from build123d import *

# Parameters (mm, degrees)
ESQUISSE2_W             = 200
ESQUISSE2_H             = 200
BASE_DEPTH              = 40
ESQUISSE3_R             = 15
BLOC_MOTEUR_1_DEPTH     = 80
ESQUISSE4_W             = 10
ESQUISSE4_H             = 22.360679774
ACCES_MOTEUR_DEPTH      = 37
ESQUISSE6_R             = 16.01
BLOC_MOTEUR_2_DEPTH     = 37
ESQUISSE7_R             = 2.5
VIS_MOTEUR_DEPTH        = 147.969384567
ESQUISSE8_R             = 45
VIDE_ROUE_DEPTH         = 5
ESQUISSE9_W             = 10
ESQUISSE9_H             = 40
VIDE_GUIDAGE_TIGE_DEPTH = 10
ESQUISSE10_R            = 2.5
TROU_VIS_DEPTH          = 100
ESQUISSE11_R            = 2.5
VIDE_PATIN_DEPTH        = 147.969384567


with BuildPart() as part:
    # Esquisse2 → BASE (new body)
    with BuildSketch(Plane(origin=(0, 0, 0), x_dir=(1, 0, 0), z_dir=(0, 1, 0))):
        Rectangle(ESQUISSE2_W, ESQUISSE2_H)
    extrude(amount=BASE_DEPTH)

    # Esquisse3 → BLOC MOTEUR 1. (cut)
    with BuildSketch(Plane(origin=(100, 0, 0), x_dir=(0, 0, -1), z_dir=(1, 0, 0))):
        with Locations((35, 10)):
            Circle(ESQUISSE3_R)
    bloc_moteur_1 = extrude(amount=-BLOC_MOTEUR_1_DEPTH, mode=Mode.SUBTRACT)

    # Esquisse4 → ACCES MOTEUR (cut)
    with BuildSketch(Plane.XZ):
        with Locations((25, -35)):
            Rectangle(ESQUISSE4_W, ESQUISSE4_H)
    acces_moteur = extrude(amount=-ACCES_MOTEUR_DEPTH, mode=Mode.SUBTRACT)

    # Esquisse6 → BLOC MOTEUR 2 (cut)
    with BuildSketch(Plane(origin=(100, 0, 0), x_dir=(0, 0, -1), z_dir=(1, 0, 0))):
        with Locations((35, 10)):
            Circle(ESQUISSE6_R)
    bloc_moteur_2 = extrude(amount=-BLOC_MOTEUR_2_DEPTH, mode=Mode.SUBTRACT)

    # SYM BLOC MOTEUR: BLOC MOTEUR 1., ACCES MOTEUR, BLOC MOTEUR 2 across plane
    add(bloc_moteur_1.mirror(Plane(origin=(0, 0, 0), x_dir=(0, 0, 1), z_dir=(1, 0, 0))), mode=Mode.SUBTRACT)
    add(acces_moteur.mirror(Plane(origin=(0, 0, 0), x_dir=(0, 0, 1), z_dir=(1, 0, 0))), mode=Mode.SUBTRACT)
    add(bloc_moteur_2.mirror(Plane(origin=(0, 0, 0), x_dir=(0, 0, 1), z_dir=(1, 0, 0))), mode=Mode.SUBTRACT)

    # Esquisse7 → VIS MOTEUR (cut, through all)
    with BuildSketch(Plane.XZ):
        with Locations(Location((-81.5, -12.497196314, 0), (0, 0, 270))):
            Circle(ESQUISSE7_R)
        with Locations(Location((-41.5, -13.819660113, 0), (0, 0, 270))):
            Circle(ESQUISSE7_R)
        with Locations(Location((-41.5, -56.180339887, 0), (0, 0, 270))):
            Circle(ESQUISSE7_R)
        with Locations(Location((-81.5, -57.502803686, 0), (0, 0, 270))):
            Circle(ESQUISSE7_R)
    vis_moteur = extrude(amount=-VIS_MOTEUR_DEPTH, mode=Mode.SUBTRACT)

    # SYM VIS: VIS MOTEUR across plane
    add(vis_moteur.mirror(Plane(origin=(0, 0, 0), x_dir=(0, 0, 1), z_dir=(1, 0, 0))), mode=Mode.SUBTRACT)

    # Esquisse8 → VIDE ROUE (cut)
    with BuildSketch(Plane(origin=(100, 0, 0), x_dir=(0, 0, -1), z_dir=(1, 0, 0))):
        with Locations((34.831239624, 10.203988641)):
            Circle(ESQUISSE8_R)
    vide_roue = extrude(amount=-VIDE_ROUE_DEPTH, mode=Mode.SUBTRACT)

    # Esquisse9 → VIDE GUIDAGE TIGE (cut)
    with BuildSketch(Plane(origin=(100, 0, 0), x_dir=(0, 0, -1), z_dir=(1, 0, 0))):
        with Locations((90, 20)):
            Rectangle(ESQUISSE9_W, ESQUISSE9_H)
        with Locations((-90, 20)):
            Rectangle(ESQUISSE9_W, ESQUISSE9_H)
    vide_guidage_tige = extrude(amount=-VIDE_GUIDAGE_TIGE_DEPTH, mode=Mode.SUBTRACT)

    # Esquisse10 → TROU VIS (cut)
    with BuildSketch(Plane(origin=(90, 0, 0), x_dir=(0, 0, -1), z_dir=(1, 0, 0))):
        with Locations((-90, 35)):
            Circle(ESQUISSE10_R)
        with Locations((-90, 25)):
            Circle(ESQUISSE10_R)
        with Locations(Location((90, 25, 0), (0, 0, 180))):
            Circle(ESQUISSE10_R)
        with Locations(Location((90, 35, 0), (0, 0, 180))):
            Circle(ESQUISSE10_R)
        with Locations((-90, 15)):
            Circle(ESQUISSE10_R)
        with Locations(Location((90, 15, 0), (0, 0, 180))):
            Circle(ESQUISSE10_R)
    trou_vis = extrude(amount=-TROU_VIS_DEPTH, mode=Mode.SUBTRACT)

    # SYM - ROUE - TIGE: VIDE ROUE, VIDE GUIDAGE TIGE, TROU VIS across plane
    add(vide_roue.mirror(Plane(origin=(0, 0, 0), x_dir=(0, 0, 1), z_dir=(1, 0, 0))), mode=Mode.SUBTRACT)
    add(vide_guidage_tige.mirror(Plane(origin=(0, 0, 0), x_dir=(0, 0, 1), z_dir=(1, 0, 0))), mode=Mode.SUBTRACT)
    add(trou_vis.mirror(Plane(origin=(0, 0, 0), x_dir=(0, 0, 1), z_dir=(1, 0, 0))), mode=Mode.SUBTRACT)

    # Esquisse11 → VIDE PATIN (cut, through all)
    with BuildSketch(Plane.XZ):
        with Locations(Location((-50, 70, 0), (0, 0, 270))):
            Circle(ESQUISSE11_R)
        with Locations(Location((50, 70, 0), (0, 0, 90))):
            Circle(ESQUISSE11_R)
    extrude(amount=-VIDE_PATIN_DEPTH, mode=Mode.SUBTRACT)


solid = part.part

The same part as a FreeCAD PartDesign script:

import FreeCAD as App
import Part
import Sketcher

V = App.Vector

doc = App.newDocument("Part")
body = doc.addObject("PartDesign::Body", "Body")

# Sketch on XZ plane
sketch1 = body.newObject("Sketcher::SketchObject", "Sketch")
sketch1.AttachmentSupport = (doc.getObject("XZ_Plane"), [""])
sketch1.MapMode = "FlatFace"
sketch1.addGeometry(Part.LineSegment(V(-100, -100, 0), V(-100, 100, 0)), False)
sketch1.addGeometry(Part.LineSegment(V(-100, 100, 0), V(100, 100, 0)), False)
sketch1.addGeometry(Part.LineSegment(V(100, 100, 0), V(100, -100, 0)), False)
sketch1.addGeometry(Part.LineSegment(V(100, -100, 0), V(-100, -100, 0)), False)
sketch1.addConstraint(Sketcher.Constraint("Coincident", 0, 2, 1, 1))
sketch1.addConstraint(Sketcher.Constraint("Coincident", 1, 2, 2, 1))
sketch1.addConstraint(Sketcher.Constraint("Coincident", 2, 2, 3, 1))
sketch1.addConstraint(Sketcher.Constraint("Coincident", 3, 2, 0, 1))
sketch1.addConstraint(Sketcher.Constraint("Vertical", 0))
sketch1.addConstraint(Sketcher.Constraint("Horizontal", 1))
sketch1.addConstraint(Sketcher.Constraint("Vertical", 2))
sketch1.addConstraint(Sketcher.Constraint("Horizontal", 3))
sketch1.addConstraint(Sketcher.Constraint("Symmetric", 0, 2, 2, 2, -1, 1))
sketch1.addConstraint(Sketcher.Constraint("Equal", 3, 0))
sketch1.addConstraint(Sketcher.Constraint("DistanceX", 1, 1, 1, 2, 200.0))
pad1 = body.newObject("PartDesign::Pad", "Pad")
pad1.Profile = sketch1
pad1.Length = 40
pad1.Reversed = True

# Sketch on YZ plane
sketch2 = body.newObject("Sketcher::SketchObject", "Sketch001")
sketch2.AttachmentSupport = (doc.getObject("YZ_Plane"), [""])
sketch2.MapMode = "FlatFace"
sketch2.AttachmentOffset = App.Placement(V(0, 0, 100), App.Rotation())
sketch2.addGeometry(Part.Circle(V(10, -35, 0), V(0, 0, 1), 15), False)
sketch2.addConstraint(Sketcher.Constraint("Diameter", 0, 30.0))
sketch2.addConstraint(Sketcher.Constraint("DistanceX", -1, 1, 0, 3, 10.0))
sketch2.addConstraint(Sketcher.Constraint("DistanceY", 0, 3, -1, 1, 35.0))
pocket1 = body.newObject("PartDesign::Pocket", "Pocket")
pocket1.Profile = sketch2
pocket1.Length = 80

# Sketch on XZ plane
sketch3 = body.newObject("Sketcher::SketchObject", "Sketch002")
sketch3.AttachmentSupport = (doc.getObject("XZ_Plane"), [""])
sketch3.MapMode = "FlatFace"
sketch3.addGeometry(Part.LineSegment(V(20, -24, 0), V(20, -46, 0)), False)
sketch3.addGeometry(Part.LineSegment(V(20, -46, 0), V(30, -46, 0)), False)
sketch3.addGeometry(Part.LineSegment(V(30, -46, 0), V(30, -24, 0)), False)
sketch3.addGeometry(Part.LineSegment(V(30, -24, 0), V(20, -24, 0)), False)
sketch3.addConstraint(Sketcher.Constraint("Coincident", 0, 2, 1, 1))
sketch3.addConstraint(Sketcher.Constraint("Coincident", 1, 2, 2, 1))
sketch3.addConstraint(Sketcher.Constraint("Coincident", 2, 2, 3, 1))
sketch3.addConstraint(Sketcher.Constraint("Coincident", 3, 2, 0, 1))
sketch3.addConstraint(Sketcher.Constraint("Vertical", 0))
sketch3.addConstraint(Sketcher.Constraint("Horizontal", 1))
sketch3.addConstraint(Sketcher.Constraint("Vertical", 2))
sketch3.addConstraint(Sketcher.Constraint("Horizontal", 3))
sketch3.addConstraint(Sketcher.Constraint("DistanceX", 1, 1, 1, 2, 10.0))
sketch3.addConstraint(Sketcher.Constraint("DistanceX", -1, 1, 0, 2, 20.0))
sketch3.addConstraint(Sketcher.Constraint("DistanceY", 0, 2, 0, 1, 22.36068))
sketch3.addConstraint(Sketcher.Constraint("DistanceY", 0, 2, -1, 1, 46.18034))
pocket2 = body.newObject("PartDesign::Pocket", "Pocket001")
pocket2.Profile = sketch3
pocket2.Length = 37

# Sketch on YZ plane
sketch4 = body.newObject("Sketcher::SketchObject", "Sketch003")
sketch4.AttachmentSupport = (doc.getObject("YZ_Plane"), [""])
sketch4.MapMode = "FlatFace"
sketch4.AttachmentOffset = App.Placement(V(0, 0, 100), App.Rotation())
sketch4.addGeometry(Part.Circle(V(10, -35, 0), V(0, 0, 1), 16), False)
sketch4.addConstraint(Sketcher.Constraint("Diameter", 0, 32.02))
sketch4.addConstraint(Sketcher.Constraint("DistanceX", -1, 1, 0, 3, 10.0))
sketch4.addConstraint(Sketcher.Constraint("DistanceY", 0, 3, -1, 1, 35.0))
pocket3 = body.newObject("PartDesign::Pocket", "Pocket002")
pocket3.Profile = sketch4
pocket3.Length = 37
doc.recompute()

mirrored = body.newObject("PartDesign::Mirrored", "Mirrored")
mirrored.Originals = [pocket1, pocket2, pocket3]
mirrored.MirrorPlane = (doc.getObject("YZ_Plane"), [""])
body.Tip = mirrored

# Sketch on XZ plane
sketch5 = body.newObject("Sketcher::SketchObject", "Sketch004")
sketch5.AttachmentSupport = (doc.getObject("XZ_Plane"), [""])
sketch5.MapMode = "FlatFace"
sketch5.addGeometry(Part.Circle(V(-81.5, -12.5, 0), V(0, 0, 1), 2.5), False)
sketch5.addGeometry(Part.Circle(V(-41.5, -13.8, 0), V(0, 0, 1), 2.5), False)
sketch5.addGeometry(Part.Circle(V(-41.5, -56.2, 0), V(0, 0, 1), 2.5), False)
sketch5.addGeometry(Part.Circle(V(-81.5, -57.5, 0), V(0, 0, 1), 2.5), False)
sketch5.addConstraint(Sketcher.Constraint("Equal", 0, 1))
sketch5.addConstraint(Sketcher.Constraint("Equal", 1, 2))
sketch5.addConstraint(Sketcher.Constraint("Equal", 2, 3))
sketch5.addConstraint(Sketcher.Constraint("Vertical", 1, 3, 2, 3))
sketch5.addConstraint(Sketcher.Constraint("Vertical", 0, 3, 3, 3))
sketch5.addConstraint(Sketcher.Constraint("Diameter", 0, 5.0))
sketch5.addConstraint(Sketcher.Constraint("DistanceX", 0, 3, 1, 3, 40.0))
sketch5.addConstraint(Sketcher.Constraint("DistanceX", 0, 3, -1, 1, 81.5))
sketch5.addConstraint(Sketcher.Constraint("DistanceY", 1, 3, -1, 1, 13.81966))
sketch5.addConstraint(Sketcher.Constraint("DistanceY", 2, 3, -1, 1, 56.18034))
sketch5.addConstraint(Sketcher.Constraint("DistanceY", 0, 3, -1, 1, 12.497196))
sketch5.addConstraint(Sketcher.Constraint("DistanceY", 3, 3, -1, 1, 57.502804))
pocket4 = body.newObject("PartDesign::Pocket", "Pocket003")
pocket4.Profile = sketch5
pocket4.Type = "ThroughAll"
doc.recompute()

mirrored2 = body.newObject("PartDesign::Mirrored", "Mirrored001")
mirrored2.Originals = [pocket4]
mirrored2.MirrorPlane = (doc.getObject("YZ_Plane"), [""])
body.Tip = mirrored2

# Sketch on YZ plane
sketch6 = body.newObject("Sketcher::SketchObject", "Sketch005")
sketch6.AttachmentSupport = (doc.getObject("YZ_Plane"), [""])
sketch6.MapMode = "FlatFace"
sketch6.AttachmentOffset = App.Placement(V(0, 0, 100), App.Rotation())
sketch6.addGeometry(Part.Circle(V(10, -35, 0), V(0, 0, 1), 45), False)
sketch6.addConstraint(Sketcher.Constraint("Diameter", 0, 90.0))
sketch6.addConstraint(Sketcher.Constraint("DistanceX", -1, 1, 0, 3, 10.203989))
sketch6.addConstraint(Sketcher.Constraint("DistanceY", 0, 3, -1, 1, 34.83124))
pocket5 = body.newObject("PartDesign::Pocket", "Pocket004")
pocket5.Profile = sketch6
pocket5.Length = 5

# Sketch on YZ plane
sketch7 = body.newObject("Sketcher::SketchObject", "Sketch006")
sketch7.AttachmentSupport = (doc.getObject("YZ_Plane"), [""])
sketch7.MapMode = "FlatFace"
sketch7.AttachmentOffset = App.Placement(V(0, 0, 100), App.Rotation())
sketch7.addGeometry(Part.LineSegment(V(40, -85, 0), V(0, -85, 0)), False)
sketch7.addGeometry(Part.LineSegment(V(0, -85, 0), V(0, -95, 0)), False)
sketch7.addGeometry(Part.LineSegment(V(0, -95, 0), V(40, -95, 0)), False)
sketch7.addGeometry(Part.LineSegment(V(40, -95, 0), V(40, -85, 0)), False)
sketch7.addGeometry(Part.LineSegment(V(40, 95, 0), V(0, 95, 0)), False)
sketch7.addGeometry(Part.LineSegment(V(0, 95, 0), V(0, 85, 0)), False)
sketch7.addGeometry(Part.LineSegment(V(0, 85, 0), V(40, 85, 0)), False)
sketch7.addGeometry(Part.LineSegment(V(40, 85, 0), V(40, 95, 0)), False)
sketch7.addConstraint(Sketcher.Constraint("Coincident", 0, 2, 1, 1))
sketch7.addConstraint(Sketcher.Constraint("Coincident", 1, 2, 2, 1))
sketch7.addConstraint(Sketcher.Constraint("Coincident", 2, 2, 3, 1))
sketch7.addConstraint(Sketcher.Constraint("Coincident", 3, 2, 0, 1))
sketch7.addConstraint(Sketcher.Constraint("Coincident", 4, 2, 5, 1))
sketch7.addConstraint(Sketcher.Constraint("Coincident", 5, 2, 6, 1))
sketch7.addConstraint(Sketcher.Constraint("Coincident", 6, 2, 7, 1))
sketch7.addConstraint(Sketcher.Constraint("Coincident", 7, 2, 4, 1))
sketch7.addConstraint(Sketcher.Constraint("Horizontal", 0))
sketch7.addConstraint(Sketcher.Constraint("Vertical", 1))
sketch7.addConstraint(Sketcher.Constraint("Horizontal", 2))
sketch7.addConstraint(Sketcher.Constraint("Vertical", 3))
sketch7.addConstraint(Sketcher.Constraint("Horizontal", 4))
sketch7.addConstraint(Sketcher.Constraint("Vertical", 5))
sketch7.addConstraint(Sketcher.Constraint("Horizontal", 6))
sketch7.addConstraint(Sketcher.Constraint("Vertical", 7))
sketch7.addConstraint(Sketcher.Constraint("Symmetric", 1, 2, 4, 2, -1, 1))
sketch7.addConstraint(Sketcher.Constraint("Symmetric", 0, 2, 5, 2, -1))
sketch7.addConstraint(Sketcher.Constraint("Vertical", 3, 2, 6, 2))
sketch7.addConstraint(Sketcher.Constraint("DistanceX", 0, 2, 0, 1, 40.0))
sketch7.addConstraint(Sketcher.Constraint("DistanceY", 1, 2, 1, 1, 10.0))
sketch7.addConstraint(Sketcher.Constraint("DistanceY", 0, 2, -1, 1, 85.0))
pocket6 = body.newObject("PartDesign::Pocket", "Pocket005")
pocket6.Profile = sketch7
pocket6.Length = 10

# Sketch on YZ plane
sketch8 = body.newObject("Sketcher::SketchObject", "Sketch007")
sketch8.AttachmentSupport = (doc.getObject("YZ_Plane"), [""])
sketch8.MapMode = "FlatFace"
sketch8.AttachmentOffset = App.Placement(V(0, 0, 90), App.Rotation())
sketch8.addGeometry(Part.Circle(V(35, 90, 0), V(0, 0, 1), 2.5), False)
sketch8.addGeometry(Part.Circle(V(25, 90, 0), V(0, 0, 1), 2.5), False)
sketch8.addGeometry(Part.Circle(V(25, -90, 0), V(0, 0, 1), 2.5), False)
sketch8.addGeometry(Part.Circle(V(35, -90, 0), V(0, 0, 1), 2.5), False)
sketch8.addGeometry(Part.Circle(V(15, 90, 0), V(0, 0, 1), 2.5), False)
sketch8.addGeometry(Part.Circle(V(15, -90, 0), V(0, 0, 1), 2.5), False)
sketch8.addConstraint(Sketcher.Constraint("Equal", 0, 1))
sketch8.addConstraint(Sketcher.Constraint("Equal", 1, 2))
sketch8.addConstraint(Sketcher.Constraint("Equal", 2, 3))
sketch8.addConstraint(Sketcher.Constraint("Equal", 3, 4))
sketch8.addConstraint(Sketcher.Constraint("Equal", 4, 5))
sketch8.addConstraint(Sketcher.Constraint("Symmetric", 1, 3, 2, 3, -1))
sketch8.addConstraint(Sketcher.Constraint("Symmetric", 0, 3, 3, 3, -1))
sketch8.addConstraint(Sketcher.Constraint("Symmetric", 4, 3, 5, 3, -1))
sketch8.addConstraint(Sketcher.Constraint("Horizontal", 0, 3, 1, 3))
sketch8.addConstraint(Sketcher.Constraint("Horizontal", 1, 3, 4, 3))
sketch8.addConstraint(Sketcher.Constraint("Diameter", 0, 5.0))
sketch8.addConstraint(Sketcher.Constraint("DistanceX", -1, 1, 0, 3, 35.0))
sketch8.addConstraint(Sketcher.Constraint("DistanceY", -1, 1, 0, 3, 90.0))
sketch8.addConstraint(Sketcher.Constraint("DistanceX", -1, 1, 1, 3, 25.0))
sketch8.addConstraint(Sketcher.Constraint("DistanceX", -1, 1, 4, 3, 15.0))
pocket7 = body.newObject("PartDesign::Pocket", "Pocket006")
pocket7.Profile = sketch8
pocket7.Length = 100
doc.recompute()

mirrored3 = body.newObject("PartDesign::Mirrored", "Mirrored002")
mirrored3.Originals = [pocket5, pocket6, pocket7]
mirrored3.MirrorPlane = (doc.getObject("YZ_Plane"), [""])
body.Tip = mirrored3

# Sketch on XZ plane
sketch9 = body.newObject("Sketcher::SketchObject", "Sketch008")
sketch9.AttachmentSupport = (doc.getObject("XZ_Plane"), [""])
sketch9.MapMode = "FlatFace"
sketch9.addGeometry(Part.Circle(V(-50, 70, 0), V(0, 0, 1), 2.5), False)
sketch9.addGeometry(Part.Circle(V(50, 70, 0), V(0, 0, 1), 2.5), False)
sketch9.addConstraint(Sketcher.Constraint("Equal", 0, 1))
sketch9.addConstraint(Sketcher.Constraint("Symmetric", 0, 3, 1, 3, -2))
sketch9.addConstraint(Sketcher.Constraint("Diameter", 0, 5.0))
sketch9.addConstraint(Sketcher.Constraint("DistanceX", 0, 3, -1, 1, 50.0))
sketch9.addConstraint(Sketcher.Constraint("DistanceY", -1, 1, 0, 3, 70.0))
pocket8 = body.newObject("PartDesign::Pocket", "Pocket007")
pocket8.Profile = sketch9
pocket8.Type = "ThroughAll"

doc.recompute()
